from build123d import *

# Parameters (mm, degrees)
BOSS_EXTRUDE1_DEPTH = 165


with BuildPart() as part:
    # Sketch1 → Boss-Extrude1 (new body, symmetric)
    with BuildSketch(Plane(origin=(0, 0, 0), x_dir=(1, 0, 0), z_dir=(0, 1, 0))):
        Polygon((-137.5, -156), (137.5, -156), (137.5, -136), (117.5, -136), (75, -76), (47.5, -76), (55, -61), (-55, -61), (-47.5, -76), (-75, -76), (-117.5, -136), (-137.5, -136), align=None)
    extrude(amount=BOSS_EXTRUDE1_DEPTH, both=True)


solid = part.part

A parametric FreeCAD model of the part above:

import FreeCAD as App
import Part
import Sketcher
Q = App.Units.Quantity


def add_polygon(sketch, points):
    """Adds a closed chain of lines whose ends are joined by coincident constraints."""
    first, n = sketch.GeometryCount, len(points)
    for a, b in zip(points, points[1:] + points[:1]):
        sketch.addGeometry(Part.LineSegment(App.Vector(*a, 0), App.Vector(*b, 0)), False)
    for i in range(n):
        sketch.addConstraint(Sketcher.Constraint("Coincident", first + i, 2, first + (i + 1) % n, 1))

doc = App.newDocument("Part")
body = doc.addObject("PartDesign::Body", "Body")

# Sketch on XZ plane
sketch1 = body.newObject("Sketcher::SketchObject", "Sketch")
sketch1.AttachmentSupport = (doc.getObject("XZ_Plane"), [""])
sketch1.MapMode = "FlatFace"
add_polygon(sketch1, [(-137.5, 156), (137.5, 156), (137.5, 136), (117.5, 136), (75, 76), (47.5, 76), (55, 61), (-55, 61), (-47.5, 76), (-75, 76), (-117.5, 136), (-137.5, 136)])  # lines 0-11
sketch1.addConstraint([
    Sketcher.Constraint("Horizontal", 0),
    Sketcher.Constraint("Vertical", 1),
    Sketcher.Constraint("Horizontal", 2),
    Sketcher.Constraint("Horizontal", 4),
    Sketcher.Constraint("Horizontal", 6),
    Sketcher.Constraint("Horizontal", 8),
    Sketcher.Constraint("Horizontal", 10),
    Sketcher.Constraint("Vertical", 11),
    Sketcher.Constraint("Symmetric", 4, 2, 7, 2, -2),
    Sketcher.Constraint("Symmetric", 2, 2, 9, 2, -2),
    Sketcher.Constraint("Equal", 4, 8),
    Sketcher.Constraint("Equal", 2, 10),
    Sketcher.Constraint("Equal", 10, 1),
    Sketcher.Constraint("Equal", 5, 7),
    Sketcher.Constraint("DistanceX", 0, 1, 0, 2, Q("275 mm")),
    Sketcher.Constraint("DistanceX", 2, 2, 2, 1, Q("20 mm")),
    Sketcher.Constraint("DistanceX", 6, 2, 6, 1, Q("110 mm")),
    Sketcher.Constraint("DistanceX", 4, 2, 4, 1, Q("27.5 mm")),
    Sketcher.Constraint("DistanceY", -1, 1, 0, 2, Q("156 mm")),
    Sketcher.Constraint("DistanceX", -1, 1, 3, 2, Q("75 mm")),
    Sketcher.Constraint("DistanceY", -1, 1, 3, 2, Q("76 mm")),
    Sketcher.Constraint("DistanceY", -1, 1, 5, 2, Q("61 mm")),
])
pad1 = body.newObject("PartDesign::Pad", "Pad")
pad1.Profile = sketch1
pad1.Length = 330
pad1.Midplane = True

doc.recompute()
